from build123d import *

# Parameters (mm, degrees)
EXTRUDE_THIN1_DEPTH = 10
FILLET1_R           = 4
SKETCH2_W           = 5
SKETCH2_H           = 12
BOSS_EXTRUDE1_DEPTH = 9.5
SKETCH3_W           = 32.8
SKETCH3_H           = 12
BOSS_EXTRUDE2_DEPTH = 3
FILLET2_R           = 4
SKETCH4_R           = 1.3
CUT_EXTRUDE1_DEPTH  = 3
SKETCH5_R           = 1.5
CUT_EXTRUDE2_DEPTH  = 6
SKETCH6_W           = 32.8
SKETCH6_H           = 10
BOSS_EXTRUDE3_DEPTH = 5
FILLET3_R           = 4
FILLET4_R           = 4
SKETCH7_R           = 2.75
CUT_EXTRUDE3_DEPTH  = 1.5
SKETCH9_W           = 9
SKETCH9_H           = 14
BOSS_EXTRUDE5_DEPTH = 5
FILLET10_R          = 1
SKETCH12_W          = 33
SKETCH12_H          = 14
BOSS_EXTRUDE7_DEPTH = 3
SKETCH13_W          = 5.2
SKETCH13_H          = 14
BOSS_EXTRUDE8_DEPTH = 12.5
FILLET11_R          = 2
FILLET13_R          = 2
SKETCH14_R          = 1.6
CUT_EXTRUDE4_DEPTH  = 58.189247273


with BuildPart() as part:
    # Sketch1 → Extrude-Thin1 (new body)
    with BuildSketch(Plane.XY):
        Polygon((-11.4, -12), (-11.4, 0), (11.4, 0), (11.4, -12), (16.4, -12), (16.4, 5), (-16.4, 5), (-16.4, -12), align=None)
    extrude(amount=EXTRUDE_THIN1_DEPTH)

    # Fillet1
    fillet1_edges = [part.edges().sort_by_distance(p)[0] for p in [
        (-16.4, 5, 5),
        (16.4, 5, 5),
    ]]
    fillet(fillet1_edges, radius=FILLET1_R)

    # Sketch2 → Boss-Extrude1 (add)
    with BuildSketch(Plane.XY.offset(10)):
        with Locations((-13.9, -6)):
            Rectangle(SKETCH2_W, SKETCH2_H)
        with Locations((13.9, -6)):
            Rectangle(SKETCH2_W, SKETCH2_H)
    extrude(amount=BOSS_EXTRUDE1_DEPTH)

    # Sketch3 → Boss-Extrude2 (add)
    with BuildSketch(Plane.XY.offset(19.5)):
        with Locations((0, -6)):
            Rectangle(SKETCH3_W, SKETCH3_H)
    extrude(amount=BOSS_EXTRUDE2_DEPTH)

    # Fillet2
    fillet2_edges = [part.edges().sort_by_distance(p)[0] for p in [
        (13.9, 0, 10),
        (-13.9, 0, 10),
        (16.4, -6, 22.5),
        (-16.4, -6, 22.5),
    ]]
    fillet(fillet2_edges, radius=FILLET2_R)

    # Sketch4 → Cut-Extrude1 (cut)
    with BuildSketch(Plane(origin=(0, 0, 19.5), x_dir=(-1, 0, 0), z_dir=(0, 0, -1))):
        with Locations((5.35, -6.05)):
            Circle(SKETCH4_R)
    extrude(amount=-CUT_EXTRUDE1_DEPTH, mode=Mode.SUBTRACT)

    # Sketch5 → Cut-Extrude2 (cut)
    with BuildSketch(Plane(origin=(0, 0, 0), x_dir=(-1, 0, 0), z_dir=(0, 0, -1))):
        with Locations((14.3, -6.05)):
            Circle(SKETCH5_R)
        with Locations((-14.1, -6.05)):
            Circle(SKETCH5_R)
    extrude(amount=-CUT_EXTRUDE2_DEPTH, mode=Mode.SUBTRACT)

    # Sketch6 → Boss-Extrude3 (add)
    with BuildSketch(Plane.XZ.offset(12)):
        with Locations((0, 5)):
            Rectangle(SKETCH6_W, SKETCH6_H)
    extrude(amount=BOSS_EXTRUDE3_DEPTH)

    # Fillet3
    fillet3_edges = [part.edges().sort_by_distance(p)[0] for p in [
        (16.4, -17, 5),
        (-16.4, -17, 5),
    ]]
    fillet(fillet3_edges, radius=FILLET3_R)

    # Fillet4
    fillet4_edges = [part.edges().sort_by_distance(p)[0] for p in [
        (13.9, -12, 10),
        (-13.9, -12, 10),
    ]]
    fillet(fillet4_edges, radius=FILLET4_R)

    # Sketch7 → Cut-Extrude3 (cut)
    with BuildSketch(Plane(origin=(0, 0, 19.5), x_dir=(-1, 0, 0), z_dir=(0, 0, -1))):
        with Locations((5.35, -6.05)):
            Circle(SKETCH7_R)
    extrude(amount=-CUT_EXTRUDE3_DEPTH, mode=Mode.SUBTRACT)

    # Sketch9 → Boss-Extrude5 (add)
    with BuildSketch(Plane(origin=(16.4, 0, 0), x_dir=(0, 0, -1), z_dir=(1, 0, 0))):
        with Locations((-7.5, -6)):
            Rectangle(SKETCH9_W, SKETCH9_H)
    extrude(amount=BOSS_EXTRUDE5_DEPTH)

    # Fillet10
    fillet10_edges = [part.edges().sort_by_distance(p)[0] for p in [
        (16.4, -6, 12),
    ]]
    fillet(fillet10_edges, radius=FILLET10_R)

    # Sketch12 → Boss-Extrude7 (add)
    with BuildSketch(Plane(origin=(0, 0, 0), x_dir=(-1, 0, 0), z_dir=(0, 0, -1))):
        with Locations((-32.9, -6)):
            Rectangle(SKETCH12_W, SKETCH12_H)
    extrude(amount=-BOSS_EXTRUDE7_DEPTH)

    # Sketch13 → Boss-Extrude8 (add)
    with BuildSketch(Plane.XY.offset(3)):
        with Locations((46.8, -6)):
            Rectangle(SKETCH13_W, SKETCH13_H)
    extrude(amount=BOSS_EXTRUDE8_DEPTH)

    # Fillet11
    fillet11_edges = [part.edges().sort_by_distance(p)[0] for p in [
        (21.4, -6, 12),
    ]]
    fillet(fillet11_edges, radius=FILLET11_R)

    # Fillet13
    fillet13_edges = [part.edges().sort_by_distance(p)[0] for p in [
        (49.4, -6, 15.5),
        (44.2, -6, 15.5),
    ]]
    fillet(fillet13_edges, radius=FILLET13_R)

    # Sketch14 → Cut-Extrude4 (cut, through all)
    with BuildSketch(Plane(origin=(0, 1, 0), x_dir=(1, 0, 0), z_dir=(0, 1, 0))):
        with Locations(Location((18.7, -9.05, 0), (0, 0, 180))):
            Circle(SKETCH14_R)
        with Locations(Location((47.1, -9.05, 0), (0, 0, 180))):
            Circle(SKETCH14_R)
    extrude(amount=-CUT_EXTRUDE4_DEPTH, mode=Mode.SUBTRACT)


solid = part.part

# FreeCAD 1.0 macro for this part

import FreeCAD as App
import Part
import Sketcher
from FreeCAD import Vector
Q = App.Units.Quantity


def edges_at(feature, points):
    """Names of the edges that pass closest to the given points."""
    edges = feature.Shape.Edges
    near = lambda p: min(range(len(edges)), key=lambda i: edges[i].distToShape(Part.Vertex(*p))[0])
    return sorted({f"Edge{near(p) + 1}" for p in points})


def add_polygon(sketch, points):
    """Adds a closed chain of lines whose ends are joined by coincident constraints."""
    first, n = sketch.GeometryCount, len(points)
    for a, b in zip(points, points[1:] + points[:1]):
        sketch.addGeometry(Part.LineSegment(App.Vector(*a, 0), App.Vector(*b, 0)), False)
    for i in range(n):
        sketch.addConstraint(Sketcher.Constraint("Coincident", first + i, 2, first + (i + 1) % n, 1))

doc = App.newDocument("Part")
body = doc.addObject("PartDesign::Body", "Body")

# Sketch on XY plane
sketch1 = body.newObject("Sketcher::SketchObject", "Sketch")
sketch1.AttachmentSupport = (doc.getObject("XY_Plane"), [""])
sketch1.MapMode = "FlatFace"
add_polygon(sketch1, [(-11.4, -12), (-11.4, 0), (11.4, 0), (11.4, -12), (16.4, -12), (16.4, 5), (-16.4, 5), (-16.4, -12)])  # lines 0-7
sketch1.addConstraint([
    Sketcher.Constraint("Vertical", 0),
    Sketcher.Constraint("Horizontal", 1),
    Sketcher.Constraint("Vertical", 2),
    Sketcher.Constraint("Horizontal", 3),
    Sketcher.Constraint("Vertical", 4),
    Sketcher.Constraint("Horizontal", 5),
    Sketcher.Constraint("Vertical", 6),
    Sketcher.Constraint("Horizontal", 7),
    Sketcher.Constraint("Symmetric", 0, 2, 1, 2, -1, 1),
    Sketcher.Constraint("Symmetric", 3, 2, 6, 2, -2),
    Sketcher.Constraint("DistanceX", 3, 1, 3, 2, Q("5 mm")),
    Sketcher.Constraint("DistanceY", 0, 1, 0, 2, Q("12 mm")),
    Sketcher.Constraint("DistanceY", 4, 1, 4, 2, Q("17 mm")),
    Sketcher.Constraint("DistanceX", 1, 1, 1, 2, Q("22.8 mm")),
])
pad1 = body.newObject("PartDesign::Pad", "Pad")
pad1.Profile = sketch1
pad1.Length = 10
doc.recompute()

fillet = body.newObject("PartDesign::Fillet", "Fillet")
fillet.Base = (pad1, edges_at(pad1, [(-16.4, 5, 5), (16.4, 5, 5)]))
fillet.Radius = 4

# Sketch on XY plane
sketch2 = body.newObject("Sketcher::SketchObject", "Sketch001")
sketch2.AttachmentSupport = (doc.getObject("XY_Plane"), [""])
sketch2.MapMode = "FlatFace"
sketch2.AttachmentOffset = App.Placement(Vector(0, 0, 10), App.Rotation())
add_polygon(sketch2, [(-16.4, 0), (-16.4, -12), (-11.4, -12), (-11.4, 0)])  # lines 0-3
add_polygon(sketch2, [(11.4, 0), (11.4, -12), (16.4, -12), (16.4, 0)])  # lines 4-7
sketch2.addConstraint([
    Sketcher.Constraint("Vertical", 0),
    Sketcher.Constraint("Horizontal", 1),
    Sketcher.Constraint("Vertical", 2),
    Sketcher.Constraint("Horizontal", 3),
    Sketcher.Constraint("Vertical", 4),
    Sketcher.Constraint("Horizontal", 5),
    Sketcher.Constraint("Vertical", 6),
    Sketcher.Constraint("Horizontal", 7),
    Sketcher.Constraint("Symmetric", 3, 2, 6, 2, -1, 1),
    Sketcher.Constraint("Symmetric", 1, 2, 4, 2, -2),
    Sketcher.Constraint("PointOnObject", 2, 2, -1),
    Sketcher.Constraint("DistanceX", 1, 1, 1, 2, Q("5 mm")),
    Sketcher.Constraint("DistanceY", 0, 2, 0, 1, Q("12 mm")),
    Sketcher.Constraint("DistanceX", 0, 2, -1, 1, Q("16.4 mm")),
])
pad2 = body.newObject("PartDesign::Pad", "Pad001")
pad2.Profile = sketch2
pad2.Length = 9.5

# Sketch on XY plane
sketch3 = body.newObject("Sketcher::SketchObject", "Sketch002")
sketch3.AttachmentSupport = (doc.getObject("XY_Plane"), [""])
sketch3.MapMode = "FlatFace"
sketch3.AttachmentOffset = App.Placement(Vector(0, 0, 19.5), App.Rotation())
add_polygon(sketch3, [(-16.4, 0), (-16.4, -12), (16.4, -12), (16.4, 0)])  # lines 0-3
sketch3.addConstraint([
    Sketcher.Constraint("Vertical", 0),
    Sketcher.Constraint("Horizontal", 1),
    Sketcher.Constraint("Vertical", 2),
    Sketcher.Constraint("Horizontal", 3),
    Sketcher.Constraint("Symmetric", 2, 2, 3, 2, -1, 1),
    Sketcher.Constraint("DistanceY", 0, 2, 0, 1, Q("12 mm")),
    Sketcher.Constraint("DistanceX", 1, 1, 1, 2, Q("32.8 mm")),
])
pad3 = body.newObject("PartDesign::Pad", "Pad002")
pad3.Profile = sketch3
pad3.Length = 3
doc.recompute()

fillet2 = body.newObject("PartDesign::Fillet", "Fillet001")
fillet2.Base = (pad3, edges_at(pad3, [
    (13.9, 0, 10),
    (-13.9, 0, 10),
    (16.4, -6, 22.5),
    (-16.4, -6, 22.5),
]))
fillet2.Radius = 4

# Sketch on XY plane
sketch4 = body.newObject("Sketcher::SketchObject", "Sketch003")
sketch4.AttachmentSupport = (doc.getObject("XY_Plane"), [""])
sketch4.MapMode = "FlatFace"
sketch4.AttachmentOffset = App.Placement(Vector(0, 0, 19.5), App.Rotation())
sketch4.addGeometry(Part.Circle(Vector(-5.35, -6.05, 0), Vector(0, 0, 1), 1.3), False)
sketch4.addConstraint([
    Sketcher.Constraint("Diameter", 0, Q("2.6 mm")),
    Sketcher.Constraint("DistanceX", 0, 3, -1, 1, Q("5.35 mm")),
    Sketcher.Constraint("DistanceY", 0, 3, -1, 1, Q("6.05 mm")),
])
pocket1 = body.newObject("PartDesign::Pocket", "Pocket")
pocket1.Profile = sketch4
pocket1.Length = 3
pocket1.Reversed = True

# Sketch on XY plane
sketch5 = body.newObject("Sketcher::SketchObject", "Sketch004")
sketch5.AttachmentSupport = (doc.getObject("XY_Plane"), [""])
sketch5.MapMode = "FlatFace"
sketch5.addGeometry([
    Part.Circle(Vector(-14.3, -6.05, 0), Vector(0, 0, 1), 1.5),
    Part.Circle(Vector(14.1, -6.05, 0), Vector(0, 0, 1), 1.5),
], False)
sketch5.addConstraint([
    Sketcher.Constraint("Equal", 0, 1),
    Sketcher.Constraint("Horizontal", 0, 3, 1, 3),
    Sketcher.Constraint("Diameter", 0, Q("3 mm")),
    Sketcher.Constraint("DistanceX", 0, 3, -1, 1, Q("14.3 mm")),
    Sketcher.Constraint("DistanceX", -1, 1, 1, 3, Q("14.1 mm")),
    Sketcher.Constraint("DistanceY", 0, 3, -1, 1, Q("6.05 mm")),
])
pocket2 = body.newObject("PartDesign::Pocket", "Pocket001")
pocket2.Profile = sketch5
pocket2.Length = 6
pocket2.Reversed = True

# Sketch on XZ plane
sketch6 = body.newObject("Sketcher::SketchObject", "Sketch005")
sketch6.AttachmentSupport = (doc.getObject("XZ_Plane"), [""])
sketch6.MapMode = "FlatFace"
sketch6.AttachmentOffset = App.Placement(Vector(0, 0, 12), App.Rotation())
add_polygon(sketch6, [(-16.4, 10), (-16.4, 0), (16.4, 0), (16.4, 10)])  # lines 0-3
sketch6.addConstraint([
    Sketcher.Constraint("Vertical", 0),
    Sketcher.Constraint("Horizontal", 1),
    Sketcher.Constraint("Vertical", 2),
    Sketcher.Constraint("Horizontal", 3),
    Sketcher.Constraint("Symmetric", 0, 2, 1, 2, -1, 1),
    Sketcher.Constraint("DistanceY", 0, 2, 0, 1, Q("10 mm")),
    Sketcher.Constraint("DistanceX", 1, 1, 1, 2, Q("32.8 mm")),
])
pad4 = body.newObject("PartDesign::Pad", "Pad003")
pad4.Profile = sketch6
pad4.Length = 5
doc.recompute()

fillet3 = body.newObject("PartDesign::Fillet", "Fillet002")
fillet3.Base = (pad4, edges_at(pad4, [(16.4, -17, 5), (-16.4, -17, 5)]))
fillet3.Radius = 4
doc.recompute()

fillet4 = body.newObject("PartDesign::Fillet", "Fillet003")
fillet4.Base = (fillet3, edges_at(fillet3, [(13.9, -12, 10), (-13.9, -12, 10)]))
fillet4.Radius = 4

# Sketch on XY plane
sketch7 = body.newObject("Sketcher::SketchObject", "Sketch006")
sketch7.AttachmentSupport = (doc.getObject("XY_Plane"), [""])
sketch7.MapMode = "FlatFace"
sketch7.AttachmentOffset = App.Placement(Vector(0, 0, 19.5), App.Rotation())
sketch7.addGeometry(Part.Circle(Vector(-5.35, -6.05, 0), Vector(0, 0, 1), 2.75), False)
sketch7.addConstraint([
    Sketcher.Constraint("Diameter", 0, Q("5.5 mm")),
    Sketcher.Constraint("DistanceX", 0, 3, -1, 1, Q("5.35 mm")),
    Sketcher.Constraint("DistanceY", 0, 3, -1, 1, Q("6.05 mm")),
])
pocket3 = body.newObject("PartDesign::Pocket", "Pocket002")
pocket3.Profile = sketch7
pocket3.Length = 1.5
pocket3.Reversed = True

# Sketch on YZ plane
sketch8 = body.newObject("Sketcher::SketchObject", "Sketch007")
sketch8.AttachmentSupport = (doc.getObject("YZ_Plane"), [""])
sketch8.MapMode = "FlatFace"
sketch8.AttachmentOffset = App.Placement(Vector(0, 0, 16.4), App.Rotation())
add_polygon(sketch8, [(1, 12), (-13, 12), (-13, 3), (1, 3)])  # lines 0-3
sketch8.addConstraint([
    Sketcher.Constraint("Horizontal", 0),
    Sketcher.Constraint("Vertical", 1),
    Sketcher.Constraint("Horizontal", 2),
    Sketcher.Constraint("Vertical", 3),
    Sketcher.Constraint("DistanceX", 0, 2, 0, 1, Q("14 mm")),
    Sketcher.Constraint("DistanceY", 1, 2, 1, 1, Q("9 mm")),
    Sketcher.Constraint("DistanceX", 0, 2, -1, 1, Q("13 mm")),
    Sketcher.Constraint("DistanceY", -1, 1, 0, 2, Q("12 mm")),
])
pad5 = body.newObject("PartDesign::Pad", "Pad004")
pad5.Profile = sketch8
pad5.Length = 5
doc.recompute()

fillet5 = body.newObject("PartDesign::Fillet", "Fillet004")
fillet5.Base = (pad5, edges_at(pad5, [(16.4, -6, 12)]))
fillet5.Radius = 1

# Sketch on XY plane
sketch9 = body.newObject("Sketcher::SketchObject", "Sketch008")
sketch9.AttachmentSupport = (doc.getObject("XY_Plane"), [""])
sketch9.MapMode = "FlatFace"
add_polygon(sketch9, [(49.4, 1), (49.4, -13), (16.4, -13), (16.4, 1)])  # lines 0-3
sketch9.addConstraint([
    Sketcher.Constraint("Vertical", 0),
    Sketcher.Constraint("Horizontal", 1),
    Sketcher.Constraint("Vertical", 2),
    Sketcher.Constraint("Horizontal", 3),
    Sketcher.Constraint("DistanceX", 1, 2, 1, 1, Q("33 mm")),
    Sketcher.Constraint("DistanceY", 0, 2, 0, 1, Q("14 mm")),
    Sketcher.Constraint("DistanceY", 0, 2, -1, 1, Q("13 mm")),
    Sketcher.Constraint("DistanceX", -1, 1, 0, 2, Q("49.4 mm")),
])
pad6 = body.newObject("PartDesign::Pad", "Pad005")
pad6.Profile = sketch9
pad6.Length = 3

# Sketch on XY plane
sketch10 = body.newObject("Sketcher::SketchObject", "Sketch009")
sketch10.AttachmentSupport = (doc.getObject("XY_Plane"), [""])
sketch10.MapMode = "FlatFace"
sketch10.AttachmentOffset = App.Placement(Vector(0, 0, 3), App.Rotation())
add_polygon(sketch10, [(44.2, 1), (44.2, -13), (49.4, -13), (49.4, 1)])  # lines 0-3
sketch10.addConstraint([
    Sketcher.Constraint("Vertical", 0),
    Sketcher.Constraint("Horizontal", 1),
    Sketcher.Constraint("Vertical", 2),
    Sketcher.Constraint("Horizontal", 3),
    Sketcher.Constraint("DistanceY", 0, 2, 0, 1, Q("14 mm")),
    Sketcher.Constraint("DistanceX", 1, 1, 1, 2, Q("5.2 mm")),
    Sketcher.Constraint("DistanceY", 0, 2, -1, 1, Q("13 mm")),
    Sketcher.Constraint("DistanceX", -1, 1, 0, 2, Q("44.2 mm")),
])
pad7 = body.newObject("PartDesign::Pad", "Pad006")
pad7.Profile = sketch10
pad7.Length = 12.5
doc.recompute()

fillet6 = body.newObject("PartDesign::Fillet", "Fillet005")
fillet6.Base = (pad7, edges_at(pad7, [(21.4, -6, 12)]))
fillet6.Radius = 2
doc.recompute()

fillet7 = body.newObject("PartDesign::Fillet", "Fillet006")
fillet7.Base = (fillet6, edges_at(fillet6, [(49.4, -6, 15.5), (44.2, -6, 15.5)]))
fillet7.Radius = 2

# Sketch on XZ plane
sketch11 = body.newObject("Sketcher::SketchObject", "Sketch010")
sketch11.AttachmentSupport = (doc.getObject("XZ_Plane"), [""])
sketch11.MapMode = "FlatFace"
sketch11.AttachmentOffset = App.Placement(Vector(0, 0, -1), App.Rotation())
sketch11.addGeometry([
    Part.Circle(Vector(18.7, 9.05, 0), Vector(0, 0, 1), 1.6),
    Part.Circle(Vector(47.1, 9.05, 0), Vector(0, 0, 1), 1.6),
], False)
sketch11.addConstraint([
    Sketcher.Constraint("Equal", 0, 1),
    Sketcher.Constraint("Horizontal", 0, 3, 1, 3),
    Sketcher.Constraint("Diameter", 0, Q("3.2 mm")),
    Sketcher.Constraint("DistanceX", -1, 1, 0, 3, Q("18.7 mm")),
    Sketcher.Constraint("DistanceX", -1, 1, 1, 3, Q("47.1 mm")),
    Sketcher.Constraint("DistanceY", -1, 1, 0, 3, Q("9.05 mm")),
])
pocket4 = body.newObject("PartDesign::Pocket", "Pocket003")
pocket4.Profile = sketch11
pocket4.Type = "ThroughAll"
pocket4.Reversed = True

doc.recompute()
